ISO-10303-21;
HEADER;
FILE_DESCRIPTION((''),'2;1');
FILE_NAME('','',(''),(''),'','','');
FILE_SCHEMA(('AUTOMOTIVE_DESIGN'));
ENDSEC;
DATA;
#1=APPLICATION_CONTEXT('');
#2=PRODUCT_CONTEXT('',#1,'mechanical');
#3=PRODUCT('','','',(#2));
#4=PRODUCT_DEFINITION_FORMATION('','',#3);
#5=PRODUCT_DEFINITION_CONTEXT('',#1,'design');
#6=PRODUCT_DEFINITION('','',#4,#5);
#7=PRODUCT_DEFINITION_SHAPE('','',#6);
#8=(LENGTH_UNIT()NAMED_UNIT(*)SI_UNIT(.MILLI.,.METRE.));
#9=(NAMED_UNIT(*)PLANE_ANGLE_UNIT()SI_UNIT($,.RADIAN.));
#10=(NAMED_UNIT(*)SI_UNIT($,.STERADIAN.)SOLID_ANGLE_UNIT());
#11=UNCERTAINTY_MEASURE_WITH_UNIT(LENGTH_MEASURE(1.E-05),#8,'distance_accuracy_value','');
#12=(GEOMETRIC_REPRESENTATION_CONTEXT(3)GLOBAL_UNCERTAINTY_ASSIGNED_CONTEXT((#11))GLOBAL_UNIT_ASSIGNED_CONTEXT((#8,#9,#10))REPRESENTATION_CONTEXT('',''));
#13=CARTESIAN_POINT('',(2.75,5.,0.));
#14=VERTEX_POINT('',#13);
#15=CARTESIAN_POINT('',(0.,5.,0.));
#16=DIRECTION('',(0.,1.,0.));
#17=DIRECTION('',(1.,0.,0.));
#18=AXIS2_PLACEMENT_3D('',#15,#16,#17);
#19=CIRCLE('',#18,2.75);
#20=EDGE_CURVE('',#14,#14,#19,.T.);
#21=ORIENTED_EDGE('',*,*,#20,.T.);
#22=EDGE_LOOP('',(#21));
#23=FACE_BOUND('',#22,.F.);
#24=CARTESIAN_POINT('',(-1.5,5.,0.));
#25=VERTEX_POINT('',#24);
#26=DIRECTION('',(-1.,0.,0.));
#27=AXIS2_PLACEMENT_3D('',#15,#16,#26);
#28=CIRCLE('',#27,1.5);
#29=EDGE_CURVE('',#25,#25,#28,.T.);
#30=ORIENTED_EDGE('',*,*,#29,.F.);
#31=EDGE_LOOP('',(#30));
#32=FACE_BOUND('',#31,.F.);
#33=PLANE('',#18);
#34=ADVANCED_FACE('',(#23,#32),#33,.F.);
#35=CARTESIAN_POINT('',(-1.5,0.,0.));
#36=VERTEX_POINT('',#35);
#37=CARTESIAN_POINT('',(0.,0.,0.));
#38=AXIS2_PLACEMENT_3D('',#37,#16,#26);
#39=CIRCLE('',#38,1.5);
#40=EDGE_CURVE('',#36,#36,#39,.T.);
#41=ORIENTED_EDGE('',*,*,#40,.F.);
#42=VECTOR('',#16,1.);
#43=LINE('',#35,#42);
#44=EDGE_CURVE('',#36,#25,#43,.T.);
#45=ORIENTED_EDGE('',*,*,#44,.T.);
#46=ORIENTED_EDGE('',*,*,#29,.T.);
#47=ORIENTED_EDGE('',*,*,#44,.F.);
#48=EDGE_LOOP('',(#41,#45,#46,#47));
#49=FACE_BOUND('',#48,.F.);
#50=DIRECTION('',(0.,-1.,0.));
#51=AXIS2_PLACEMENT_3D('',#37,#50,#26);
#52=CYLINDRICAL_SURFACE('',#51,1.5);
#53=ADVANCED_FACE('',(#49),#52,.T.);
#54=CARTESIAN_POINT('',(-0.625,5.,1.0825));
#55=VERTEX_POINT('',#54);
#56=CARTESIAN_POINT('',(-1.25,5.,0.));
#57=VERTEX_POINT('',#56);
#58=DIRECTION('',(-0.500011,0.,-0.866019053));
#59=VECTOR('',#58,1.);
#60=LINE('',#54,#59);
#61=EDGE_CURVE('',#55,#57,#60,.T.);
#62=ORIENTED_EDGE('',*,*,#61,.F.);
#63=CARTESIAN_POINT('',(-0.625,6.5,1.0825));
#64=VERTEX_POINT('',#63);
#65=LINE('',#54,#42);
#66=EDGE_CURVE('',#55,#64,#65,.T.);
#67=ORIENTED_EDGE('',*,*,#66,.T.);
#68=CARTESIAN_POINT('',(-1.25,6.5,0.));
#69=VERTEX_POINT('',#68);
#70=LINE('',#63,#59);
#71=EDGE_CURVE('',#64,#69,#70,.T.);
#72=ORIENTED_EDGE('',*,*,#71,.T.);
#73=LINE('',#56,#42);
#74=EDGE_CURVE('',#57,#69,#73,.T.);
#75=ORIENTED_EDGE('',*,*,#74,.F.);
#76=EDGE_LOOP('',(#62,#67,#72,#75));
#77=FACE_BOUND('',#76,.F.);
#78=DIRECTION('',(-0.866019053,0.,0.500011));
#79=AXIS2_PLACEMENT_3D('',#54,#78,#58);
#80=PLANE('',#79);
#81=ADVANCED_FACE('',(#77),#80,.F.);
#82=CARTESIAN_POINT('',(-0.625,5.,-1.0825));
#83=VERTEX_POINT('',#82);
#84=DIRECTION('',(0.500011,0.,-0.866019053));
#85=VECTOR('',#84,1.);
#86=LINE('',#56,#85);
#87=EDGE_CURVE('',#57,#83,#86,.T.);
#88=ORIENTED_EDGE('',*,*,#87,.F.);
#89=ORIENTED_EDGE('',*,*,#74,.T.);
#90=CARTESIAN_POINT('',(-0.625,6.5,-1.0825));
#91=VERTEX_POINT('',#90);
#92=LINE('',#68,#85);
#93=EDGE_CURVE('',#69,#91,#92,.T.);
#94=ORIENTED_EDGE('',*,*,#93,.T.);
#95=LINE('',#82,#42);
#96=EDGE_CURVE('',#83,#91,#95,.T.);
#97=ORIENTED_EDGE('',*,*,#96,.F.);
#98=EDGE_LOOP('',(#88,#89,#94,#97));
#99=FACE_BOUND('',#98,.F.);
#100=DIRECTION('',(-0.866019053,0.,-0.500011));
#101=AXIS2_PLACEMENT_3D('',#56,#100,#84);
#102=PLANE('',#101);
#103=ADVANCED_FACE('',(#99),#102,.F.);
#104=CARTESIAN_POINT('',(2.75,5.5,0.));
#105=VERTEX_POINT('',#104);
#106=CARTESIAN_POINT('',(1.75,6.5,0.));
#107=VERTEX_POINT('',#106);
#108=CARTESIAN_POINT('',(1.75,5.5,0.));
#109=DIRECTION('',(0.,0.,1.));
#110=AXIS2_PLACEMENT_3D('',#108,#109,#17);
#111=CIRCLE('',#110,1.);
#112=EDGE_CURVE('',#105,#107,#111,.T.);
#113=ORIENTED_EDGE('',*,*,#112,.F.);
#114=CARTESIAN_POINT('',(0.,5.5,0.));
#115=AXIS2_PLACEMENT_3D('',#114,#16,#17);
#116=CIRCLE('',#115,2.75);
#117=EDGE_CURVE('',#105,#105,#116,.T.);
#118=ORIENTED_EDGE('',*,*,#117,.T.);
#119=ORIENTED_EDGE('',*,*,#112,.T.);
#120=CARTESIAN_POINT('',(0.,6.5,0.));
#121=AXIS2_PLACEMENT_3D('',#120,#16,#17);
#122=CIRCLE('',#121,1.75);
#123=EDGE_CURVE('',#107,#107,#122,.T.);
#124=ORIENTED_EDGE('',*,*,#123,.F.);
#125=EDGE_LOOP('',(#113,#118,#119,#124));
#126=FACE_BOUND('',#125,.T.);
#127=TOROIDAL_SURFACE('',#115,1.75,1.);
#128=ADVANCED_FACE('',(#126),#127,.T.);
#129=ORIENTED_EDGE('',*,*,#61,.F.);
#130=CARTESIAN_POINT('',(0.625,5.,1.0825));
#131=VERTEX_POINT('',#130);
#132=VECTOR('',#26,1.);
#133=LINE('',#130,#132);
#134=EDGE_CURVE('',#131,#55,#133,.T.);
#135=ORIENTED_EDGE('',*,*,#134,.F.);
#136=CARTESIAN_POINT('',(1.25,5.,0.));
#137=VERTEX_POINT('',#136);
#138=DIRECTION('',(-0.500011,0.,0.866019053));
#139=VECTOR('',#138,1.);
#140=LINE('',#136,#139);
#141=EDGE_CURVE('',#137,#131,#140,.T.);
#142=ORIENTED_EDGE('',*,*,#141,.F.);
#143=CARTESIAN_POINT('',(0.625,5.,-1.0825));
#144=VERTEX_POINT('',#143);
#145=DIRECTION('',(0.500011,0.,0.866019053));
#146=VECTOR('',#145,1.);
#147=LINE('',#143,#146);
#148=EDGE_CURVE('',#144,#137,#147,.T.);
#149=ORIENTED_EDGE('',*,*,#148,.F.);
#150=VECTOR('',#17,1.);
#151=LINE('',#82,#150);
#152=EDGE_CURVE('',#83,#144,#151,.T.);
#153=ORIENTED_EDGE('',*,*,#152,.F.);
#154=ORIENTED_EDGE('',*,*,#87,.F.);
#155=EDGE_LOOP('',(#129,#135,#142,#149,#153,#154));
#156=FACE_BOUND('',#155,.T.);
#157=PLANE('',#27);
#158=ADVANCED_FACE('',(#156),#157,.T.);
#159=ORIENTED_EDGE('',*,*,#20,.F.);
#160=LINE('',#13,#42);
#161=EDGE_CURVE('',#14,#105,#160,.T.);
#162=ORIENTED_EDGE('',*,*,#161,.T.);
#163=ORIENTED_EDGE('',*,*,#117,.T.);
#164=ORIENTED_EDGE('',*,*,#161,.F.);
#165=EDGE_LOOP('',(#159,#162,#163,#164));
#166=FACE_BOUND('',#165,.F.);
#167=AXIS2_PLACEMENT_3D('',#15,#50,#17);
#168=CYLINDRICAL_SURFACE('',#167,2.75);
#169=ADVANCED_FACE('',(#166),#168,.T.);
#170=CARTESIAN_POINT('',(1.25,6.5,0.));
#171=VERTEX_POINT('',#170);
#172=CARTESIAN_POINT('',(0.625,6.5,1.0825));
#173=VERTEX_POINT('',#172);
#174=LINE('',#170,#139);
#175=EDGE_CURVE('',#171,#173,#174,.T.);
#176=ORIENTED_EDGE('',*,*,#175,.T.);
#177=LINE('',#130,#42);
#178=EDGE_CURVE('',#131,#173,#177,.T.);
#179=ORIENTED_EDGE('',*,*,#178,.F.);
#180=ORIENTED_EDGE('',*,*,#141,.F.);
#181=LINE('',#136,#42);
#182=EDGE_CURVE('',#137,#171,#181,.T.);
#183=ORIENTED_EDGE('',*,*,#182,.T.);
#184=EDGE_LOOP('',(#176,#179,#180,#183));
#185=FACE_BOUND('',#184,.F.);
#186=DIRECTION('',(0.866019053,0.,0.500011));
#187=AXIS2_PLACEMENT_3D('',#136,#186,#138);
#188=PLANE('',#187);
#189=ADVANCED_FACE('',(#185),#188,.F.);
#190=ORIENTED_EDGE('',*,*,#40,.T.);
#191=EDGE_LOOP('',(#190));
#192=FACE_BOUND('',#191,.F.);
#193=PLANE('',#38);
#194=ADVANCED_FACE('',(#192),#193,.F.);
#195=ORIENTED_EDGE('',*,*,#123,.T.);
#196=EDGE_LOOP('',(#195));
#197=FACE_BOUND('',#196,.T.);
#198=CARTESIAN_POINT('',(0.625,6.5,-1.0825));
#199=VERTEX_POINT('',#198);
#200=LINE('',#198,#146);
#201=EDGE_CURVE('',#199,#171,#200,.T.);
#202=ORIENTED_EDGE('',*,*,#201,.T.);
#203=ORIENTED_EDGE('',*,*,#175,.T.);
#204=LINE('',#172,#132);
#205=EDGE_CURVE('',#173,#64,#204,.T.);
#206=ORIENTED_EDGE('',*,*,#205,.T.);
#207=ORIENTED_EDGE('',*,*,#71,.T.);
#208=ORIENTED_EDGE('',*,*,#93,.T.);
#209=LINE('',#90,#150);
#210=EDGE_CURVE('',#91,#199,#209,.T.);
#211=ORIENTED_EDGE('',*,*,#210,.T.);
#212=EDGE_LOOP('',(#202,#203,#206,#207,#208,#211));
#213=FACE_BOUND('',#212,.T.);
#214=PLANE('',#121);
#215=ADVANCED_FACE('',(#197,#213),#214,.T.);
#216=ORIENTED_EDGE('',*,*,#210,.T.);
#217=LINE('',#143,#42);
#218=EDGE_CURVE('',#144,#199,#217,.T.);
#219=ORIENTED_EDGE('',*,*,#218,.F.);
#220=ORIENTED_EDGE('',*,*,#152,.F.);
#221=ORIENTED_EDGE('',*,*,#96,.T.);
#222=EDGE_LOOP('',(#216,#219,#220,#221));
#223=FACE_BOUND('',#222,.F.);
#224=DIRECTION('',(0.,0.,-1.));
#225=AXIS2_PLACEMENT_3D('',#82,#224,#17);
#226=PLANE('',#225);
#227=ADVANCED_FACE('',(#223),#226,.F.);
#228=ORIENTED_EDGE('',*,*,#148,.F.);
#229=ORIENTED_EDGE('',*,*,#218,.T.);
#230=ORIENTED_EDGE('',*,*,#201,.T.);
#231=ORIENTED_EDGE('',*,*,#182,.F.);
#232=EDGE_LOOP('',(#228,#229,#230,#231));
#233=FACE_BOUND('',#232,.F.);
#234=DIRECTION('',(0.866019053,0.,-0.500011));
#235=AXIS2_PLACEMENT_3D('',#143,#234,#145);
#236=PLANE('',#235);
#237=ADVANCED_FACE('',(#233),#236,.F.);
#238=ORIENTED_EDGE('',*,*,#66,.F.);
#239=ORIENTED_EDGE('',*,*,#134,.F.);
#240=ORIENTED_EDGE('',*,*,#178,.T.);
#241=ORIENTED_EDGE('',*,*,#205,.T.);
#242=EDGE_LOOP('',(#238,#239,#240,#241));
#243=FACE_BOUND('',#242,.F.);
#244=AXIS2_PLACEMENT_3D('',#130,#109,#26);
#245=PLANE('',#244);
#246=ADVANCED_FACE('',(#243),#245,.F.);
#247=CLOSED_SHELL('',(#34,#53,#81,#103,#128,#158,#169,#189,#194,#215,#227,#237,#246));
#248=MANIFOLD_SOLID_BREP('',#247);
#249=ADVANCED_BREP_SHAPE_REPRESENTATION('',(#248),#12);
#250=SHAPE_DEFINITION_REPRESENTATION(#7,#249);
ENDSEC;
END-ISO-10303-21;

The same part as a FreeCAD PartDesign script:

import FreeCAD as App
import Part
import Sketcher
from FreeCAD import Vector
Q = App.Units.Quantity


def edges_at(feature, points):
    """Names of the edges that pass closest to the given points."""
    edges = feature.Shape.Edges
    near = lambda p: min(range(len(edges)), key=lambda i: edges[i].distToShape(Part.Vertex(*p))[0])
    return sorted({f"Edge{near(p) + 1}" for p in points})


def add_polygon(sketch, points):
    """Adds a closed chain of lines whose ends are joined by coincident constraints."""
    first, n = sketch.GeometryCount, len(points)
    for a, b in zip(points, points[1:] + points[:1]):
        sketch.addGeometry(Part.LineSegment(App.Vector(*a, 0), App.Vector(*b, 0)), False)
    for i in range(n):
        sketch.addConstraint(Sketcher.Constraint("Coincident", first + i, 2, first + (i + 1) % n, 1))

doc = App.newDocument("Part")
body = doc.addObject("PartDesign::Body", "Body")

# Sketch on XZ plane
sketch1 = body.newObject("Sketcher::SketchObject", "Sketch")
sketch1.AttachmentSupport = (doc.getObject("XZ_Plane"), [""])
sketch1.MapMode = "FlatFace"
sketch1.addGeometry(Part.Circle(Vector(0, 0, 0), Vector(0, 0, 1), 1.5), False)
sketch1.addConstraint([
    Sketcher.Constraint("Coincident", 0, 3, -1, 1),
    Sketcher.Constraint("Diameter", 0, Q("3 mm")),
])
pad1 = body.newObject("PartDesign::Pad", "Pad")
pad1.Profile = sketch1
pad1.Length = 5
pad1.Reversed = True

# Sketch on XZ plane
sketch2 = body.newObject("Sketcher::SketchObject", "Sketch001")
sketch2.AttachmentSupport = (doc.getObject("XZ_Plane"), [""])
sketch2.MapMode = "FlatFace"
sketch2.AttachmentOffset = App.Placement(Vector(0, 0, -5), App.Rotation())
sketch2.addGeometry(Part.Circle(Vector(0, 0, 0), Vector(0, 0, 1), 2.8), False)  # 0
add_polygon(sketch2, [(-0.6, 1.1), (-1.2, 0), (-0.6, -1.1), (0.6, -1.1), (1.2, 0), (0.6, 1.1)])  # lines 1-6
sketch2.addConstraint([
    Sketcher.Constraint("Horizontal", 3),
    Sketcher.Constraint("Horizontal", 6),
    Sketcher.Constraint("Coincident", 0, 3, -1, 1),
    Sketcher.Constraint("Symmetric", 1, 2, 4, 2, -1, 1),
    Sketcher.Constraint("Symmetric", 2, 2, 5, 2, -1, 1),
    Sketcher.Constraint("PointOnObject", 1, 2, -1),
    Sketcher.Constraint("Parallel", 1, 4),
    Sketcher.Constraint("Vertical", 3, 2, 5, 2),
    Sketcher.Constraint("Diameter", 0, Q("5.5 mm")),
    Sketcher.Constraint("DistanceX", 1, 2, 4, 2, Q("2.5 mm")),
    Sketcher.Constraint("Angle", 1, Q("-120.0007 deg")),
    Sketcher.Constraint("DistanceX", 3, 1, 3, 2, Q("1.25 mm")),
])
pad2 = body.newObject("PartDesign::Pad", "Pad001")
pad2.Profile = sketch2
pad2.Length = 1.5
pad2.Reversed = True
doc.recompute()

fillet = body.newObject("PartDesign::Fillet", "Fillet")
fillet.Base = (pad2, edges_at(pad2, [(-2.75, 6.5, 0)]))
fillet.Radius = 1

doc.recompute()
